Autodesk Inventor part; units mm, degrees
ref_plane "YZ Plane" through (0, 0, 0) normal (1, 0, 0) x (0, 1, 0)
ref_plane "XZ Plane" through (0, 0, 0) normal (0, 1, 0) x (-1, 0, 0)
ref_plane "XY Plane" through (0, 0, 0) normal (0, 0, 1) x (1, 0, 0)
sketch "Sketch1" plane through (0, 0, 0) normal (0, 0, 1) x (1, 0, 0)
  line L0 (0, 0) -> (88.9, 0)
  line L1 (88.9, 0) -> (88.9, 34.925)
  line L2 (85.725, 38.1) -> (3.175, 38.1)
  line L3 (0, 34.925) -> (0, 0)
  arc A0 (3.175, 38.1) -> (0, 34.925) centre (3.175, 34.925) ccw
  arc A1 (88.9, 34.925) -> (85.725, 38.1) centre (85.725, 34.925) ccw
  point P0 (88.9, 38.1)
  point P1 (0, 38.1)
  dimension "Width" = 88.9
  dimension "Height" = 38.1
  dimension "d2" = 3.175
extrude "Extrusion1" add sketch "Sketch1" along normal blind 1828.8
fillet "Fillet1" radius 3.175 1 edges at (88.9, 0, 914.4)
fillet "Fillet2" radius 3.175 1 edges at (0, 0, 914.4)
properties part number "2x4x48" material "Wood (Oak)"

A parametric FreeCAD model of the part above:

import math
import FreeCAD as App
import Part
import Sketcher

V = App.Vector
Q = App.Units.Quantity


def edges_at(feature, points):
    """Names of the edges that pass closest to the given points."""
    edges = feature.Shape.Edges
    near = lambda p: min(range(len(edges)), key=lambda i: edges[i].distToShape(Part.Vertex(*p))[0])
    return sorted({f"Edge{near(p) + 1}" for p in points})

doc = App.newDocument("Part")
body = doc.addObject("PartDesign::Body", "Body")

# Sketch on XY plane
sketch1 = body.newObject("Sketcher::SketchObject", "Sketch")
sketch1.AttachmentSupport = (doc.getObject("XY_Plane"), [""])
sketch1.MapMode = "FlatFace"
sketch1.addGeometry([
    Part.LineSegment(V(0, 34.9, 0), V(0, 0, 0)),  # 0
    Part.LineSegment(V(0, 0, 0), V(88.9, 0, 0)),  # 1
    Part.LineSegment(V(88.9, 0, 0), V(88.9, 34.9, 0)),  # 2
    Part.ArcOfCircle(Part.Circle(V(85.7, 34.9, 0), V(0, 0, 1), 3.2), math.radians(0), math.radians(90)),  # 3
    Part.LineSegment(V(85.7, 38.1, 0), V(3.2, 38.1, 0)),  # 4
    Part.ArcOfCircle(Part.Circle(V(3.2, 34.9, 0), V(0, 0, 1), 3.2), math.radians(90), math.radians(180)),  # 5
], False)
sketch1.addConstraint([
    Sketcher.Constraint("Coincident", 0, 2, 1, 1),
    Sketcher.Constraint("Coincident", 1, 2, 2, 1),
    Sketcher.Constraint("Tangent", 2, 2, 3, 1),
    Sketcher.Constraint("Tangent", 3, 2, 4, 1),
    Sketcher.Constraint("Tangent", 4, 2, 5, 1),
    Sketcher.Constraint("Tangent", 5, 2, 0, 1),
    Sketcher.Constraint("Vertical", 0),
    Sketcher.Constraint("Horizontal", 1),
    Sketcher.Constraint("Vertical", 2),
    Sketcher.Constraint("Horizontal", 4),
    Sketcher.Constraint("Coincident", 0, 2, -1, 1),
    Sketcher.Constraint("Equal", 3, 5),
    Sketcher.Constraint("DistanceX", 1, 1, 1, 2, Q("3.5 in")),
    Sketcher.Constraint("Radius", 3, Q("0.125 in")),
    Sketcher.Constraint("DistanceY", -1, 1, 3, 2, Q("1.5 in")),
])
pad1 = body.newObject("PartDesign::Pad", "Pad")
pad1.Profile = sketch1
pad1.Length = Q("72 in")
doc.recompute()

fillet = body.newObject("PartDesign::Fillet", "Fillet")
fillet.Base = (pad1, edges_at(pad1, [(88.9, 0, 914.4)]))
fillet.Radius = Q("0.125 in")
doc.recompute()

fillet2 = body.newObject("PartDesign::Fillet", "Fillet001")
fillet2.Base = (fillet, edges_at(fillet, [(0, 0, 914.4)]))
fillet2.Radius = Q("0.125 in")

doc.recompute()
